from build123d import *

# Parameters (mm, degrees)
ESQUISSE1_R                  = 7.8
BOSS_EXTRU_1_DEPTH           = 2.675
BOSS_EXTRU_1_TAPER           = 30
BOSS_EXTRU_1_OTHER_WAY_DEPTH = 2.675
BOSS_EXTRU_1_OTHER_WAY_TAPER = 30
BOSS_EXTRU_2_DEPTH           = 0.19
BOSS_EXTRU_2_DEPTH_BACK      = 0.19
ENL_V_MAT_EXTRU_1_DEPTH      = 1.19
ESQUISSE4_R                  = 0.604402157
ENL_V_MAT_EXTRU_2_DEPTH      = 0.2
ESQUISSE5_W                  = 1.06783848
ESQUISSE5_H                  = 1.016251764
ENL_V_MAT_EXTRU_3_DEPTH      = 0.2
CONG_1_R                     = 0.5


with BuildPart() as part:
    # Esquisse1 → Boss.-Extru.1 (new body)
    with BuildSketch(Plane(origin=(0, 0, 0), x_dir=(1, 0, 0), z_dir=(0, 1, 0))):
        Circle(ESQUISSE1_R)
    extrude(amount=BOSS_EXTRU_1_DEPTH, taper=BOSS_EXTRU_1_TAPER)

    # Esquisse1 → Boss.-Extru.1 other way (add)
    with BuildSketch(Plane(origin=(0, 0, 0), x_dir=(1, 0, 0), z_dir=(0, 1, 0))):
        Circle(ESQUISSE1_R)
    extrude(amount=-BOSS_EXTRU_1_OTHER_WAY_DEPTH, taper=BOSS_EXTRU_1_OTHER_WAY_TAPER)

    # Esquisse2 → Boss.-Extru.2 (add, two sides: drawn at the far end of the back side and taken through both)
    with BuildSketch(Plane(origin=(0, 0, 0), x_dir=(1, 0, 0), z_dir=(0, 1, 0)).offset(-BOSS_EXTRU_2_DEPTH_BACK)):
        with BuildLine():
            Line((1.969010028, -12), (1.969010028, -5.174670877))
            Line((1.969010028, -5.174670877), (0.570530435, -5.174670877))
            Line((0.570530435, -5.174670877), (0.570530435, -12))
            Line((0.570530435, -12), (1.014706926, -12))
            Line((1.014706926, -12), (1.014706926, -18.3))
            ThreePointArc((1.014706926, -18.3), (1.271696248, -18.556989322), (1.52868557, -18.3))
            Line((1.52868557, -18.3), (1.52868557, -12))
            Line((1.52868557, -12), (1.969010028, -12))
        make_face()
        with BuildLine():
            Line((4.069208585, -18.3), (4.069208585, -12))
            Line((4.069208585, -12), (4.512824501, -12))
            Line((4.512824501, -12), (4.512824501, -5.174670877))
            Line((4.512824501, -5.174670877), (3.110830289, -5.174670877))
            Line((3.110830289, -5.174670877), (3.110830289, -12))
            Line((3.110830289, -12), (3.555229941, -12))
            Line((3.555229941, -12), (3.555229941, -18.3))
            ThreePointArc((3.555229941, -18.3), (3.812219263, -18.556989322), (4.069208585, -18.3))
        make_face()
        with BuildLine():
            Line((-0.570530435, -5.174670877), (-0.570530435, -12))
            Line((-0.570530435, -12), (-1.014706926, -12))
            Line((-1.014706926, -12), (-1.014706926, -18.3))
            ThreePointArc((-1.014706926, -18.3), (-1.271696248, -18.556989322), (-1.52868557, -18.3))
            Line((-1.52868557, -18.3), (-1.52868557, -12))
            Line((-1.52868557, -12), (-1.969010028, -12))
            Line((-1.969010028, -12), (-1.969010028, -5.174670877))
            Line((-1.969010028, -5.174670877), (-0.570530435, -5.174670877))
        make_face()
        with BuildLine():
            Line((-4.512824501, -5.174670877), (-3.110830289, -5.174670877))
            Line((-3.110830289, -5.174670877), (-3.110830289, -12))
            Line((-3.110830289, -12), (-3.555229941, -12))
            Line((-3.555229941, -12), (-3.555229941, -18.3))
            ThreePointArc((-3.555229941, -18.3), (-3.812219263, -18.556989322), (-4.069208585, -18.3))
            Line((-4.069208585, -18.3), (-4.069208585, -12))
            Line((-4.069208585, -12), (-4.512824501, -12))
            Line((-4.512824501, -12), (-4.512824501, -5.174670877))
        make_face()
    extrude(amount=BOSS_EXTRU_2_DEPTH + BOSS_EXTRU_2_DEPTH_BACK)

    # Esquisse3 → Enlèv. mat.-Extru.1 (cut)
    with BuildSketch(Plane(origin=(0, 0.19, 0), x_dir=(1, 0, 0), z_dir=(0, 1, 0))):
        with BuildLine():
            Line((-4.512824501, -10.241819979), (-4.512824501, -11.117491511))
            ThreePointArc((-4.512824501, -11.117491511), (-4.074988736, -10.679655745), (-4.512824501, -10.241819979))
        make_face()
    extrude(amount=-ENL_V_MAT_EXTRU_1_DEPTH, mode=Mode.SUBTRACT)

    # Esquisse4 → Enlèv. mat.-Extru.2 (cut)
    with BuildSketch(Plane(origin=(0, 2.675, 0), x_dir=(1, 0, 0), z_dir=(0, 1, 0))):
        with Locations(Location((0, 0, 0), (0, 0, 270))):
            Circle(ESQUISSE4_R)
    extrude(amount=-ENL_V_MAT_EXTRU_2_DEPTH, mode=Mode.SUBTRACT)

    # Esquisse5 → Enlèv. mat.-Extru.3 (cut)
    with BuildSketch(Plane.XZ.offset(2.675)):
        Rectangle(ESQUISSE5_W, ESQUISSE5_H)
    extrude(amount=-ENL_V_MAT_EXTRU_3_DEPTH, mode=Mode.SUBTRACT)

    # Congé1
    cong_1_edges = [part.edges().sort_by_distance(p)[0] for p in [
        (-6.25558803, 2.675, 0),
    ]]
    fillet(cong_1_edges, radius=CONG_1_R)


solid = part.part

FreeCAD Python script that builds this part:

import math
import FreeCAD as App
import Part
import Sketcher


def edges_at(feature, points):
    """Names of the edges that pass closest to the given points."""
    edges = feature.Shape.Edges
    near = lambda p: min(range(len(edges)), key=lambda i: edges[i].distToShape(Part.Vertex(*p))[0])
    return sorted({f"Edge{near(p) + 1}" for p in points})

doc = App.newDocument("Part")
body = doc.addObject("PartDesign::Body", "Body")

sketch1 = body.newObject("Sketcher::SketchObject", "Sketch")
sketch1.AttachmentSupport = (doc.getObject("XZ_Plane"), [""])
sketch1.MapMode = "FlatFace"
sketch1.addGeometry(Part.Circle(App.Vector(0, 0, 0), App.Vector(0, 0, 1), 8), False)
sketch1.addConstraint([
    Sketcher.Constraint("Coincident", 0, 3, -1, 1),
    Sketcher.Constraint("Diameter", 0, 15.6),
])
pad1 = body.newObject("PartDesign::Pad", "Pad")
pad1.Profile = sketch1
pad1.Length = 2.675
pad1.Reversed = True
pad1.TaperAngle = -30

sketch2 = body.newObject("Sketcher::SketchObject", "Sketch001")
sketch2.AttachmentSupport = (doc.getObject("XZ_Plane"), [""])
sketch2.MapMode = "FlatFace"
sketch2.addGeometry(Part.Circle(App.Vector(0, 0, 0), App.Vector(0, 0, 1), 8), False)
sketch2.addConstraint([
    Sketcher.Constraint("Coincident", 0, 3, -1, 1),
    Sketcher.Constraint("Diameter", 0, 15.6),
])
pad2 = body.newObject("PartDesign::Pad", "Pad001")
pad2.Profile = sketch2
pad2.Length = 2.675
pad2.TaperAngle = -30

sketch3 = body.newObject("Sketcher::SketchObject", "Sketch002")
sketch3.AttachmentSupport = (doc.getObject("XZ_Plane"), [""])
sketch3.MapMode = "FlatFace"
sketch3.addGeometry([
    Part.LineSegment(App.Vector(1.97, 12, 0), App.Vector(1.97, 5.17, 0)),
    Part.LineSegment(App.Vector(1.97, 5.17, 0), App.Vector(0.57, 5.17, 0)),
    Part.LineSegment(App.Vector(0.57, 5.17, 0), App.Vector(0.57, 12, 0)),
    Part.LineSegment(App.Vector(0.57, 12, 0), App.Vector(1.01, 12, 0)),
    Part.LineSegment(App.Vector(1.01, 12, 0), App.Vector(1.01, 18.3, 0)),
    Part.ArcOfCircle(Part.Circle(App.Vector(1.27, 18.3, 0), App.Vector(0, 0, 1), 0.26), math.radians(0), math.radians(180)),
    Part.LineSegment(App.Vector(1.53, 18.3, 0), App.Vector(1.53, 12, 0)),
    Part.LineSegment(App.Vector(1.53, 12, 0), App.Vector(1.97, 12, 0)),
    Part.LineSegment(App.Vector(4.07, 18.3, 0), App.Vector(4.07, 12, 0)),
    Part.LineSegment(App.Vector(4.07, 12, 0), App.Vector(4.51, 12, 0)),
    Part.LineSegment(App.Vector(4.51, 12, 0), App.Vector(4.51, 5.17, 0)),
    Part.LineSegment(App.Vector(4.51, 5.17, 0), App.Vector(3.11, 5.17, 0)),
    Part.LineSegment(App.Vector(3.11, 5.17, 0), App.Vector(3.11, 12, 0)),
    Part.LineSegment(App.Vector(3.11, 12, 0), App.Vector(3.56, 12, 0)),
    Part.LineSegment(App.Vector(3.56, 12, 0), App.Vector(3.56, 18.3, 0)),
    Part.ArcOfCircle(Part.Circle(App.Vector(3.81, 18.3, 0), App.Vector(0, 0, 1), 0.26), math.radians(0), math.radians(180)),
    Part.LineSegment(App.Vector(-0.57, 12, 0), App.Vector(-0.57, 5.17, 0)),
    Part.LineSegment(App.Vector(-0.57, 5.17, 0), App.Vector(-1.97, 5.17, 0)),
    Part.LineSegment(App.Vector(-1.97, 5.17, 0), App.Vector(-1.97, 12, 0)),
    Part.LineSegment(App.Vector(-1.97, 12, 0), App.Vector(-1.53, 12, 0)),
    Part.LineSegment(App.Vector(-1.53, 12, 0), App.Vector(-1.53, 18.3, 0)),
    Part.ArcOfCircle(Part.Circle(App.Vector(-1.27, 18.3, 0), App.Vector(0, 0, 1), 0.26), math.radians(0), math.radians(180)),
    Part.LineSegment(App.Vector(-1.01, 18.3, 0), App.Vector(-1.01, 12, 0)),
    Part.LineSegment(App.Vector(-1.01, 12, 0), App.Vector(-0.57, 12, 0)),
    Part.LineSegment(App.Vector(-3.11, 5.17, 0), App.Vector(-4.51, 5.17, 0)),
    Part.LineSegment(App.Vector(-4.51, 5.17, 0), App.Vector(-4.51, 12, 0)),
    Part.LineSegment(App.Vector(-4.51, 12, 0), App.Vector(-4.07, 12, 0)),
    Part.LineSegment(App.Vector(-4.07, 12, 0), App.Vector(-4.07, 18.3, 0)),
    Part.ArcOfCircle(Part.Circle(App.Vector(-3.81, 18.3, 0), App.Vector(0, 0, 1), 0.26), math.radians(0), math.radians(180)),
    Part.LineSegment(App.Vector(-3.56, 18.3, 0), App.Vector(-3.56, 12, 0)),
    Part.LineSegment(App.Vector(-3.56, 12, 0), App.Vector(-3.11, 12, 0)),
    Part.LineSegment(App.Vector(-3.11, 12, 0), App.Vector(-3.11, 5.17, 0)),
], False)
sketch3.addConstraint([
    Sketcher.Constraint("Coincident", 0, 2, 1, 1),
    Sketcher.Constraint("Coincident", 1, 2, 2, 1),
    Sketcher.Constraint("Coincident", 2, 2, 3, 1),
    Sketcher.Constraint("Coincident", 3, 2, 4, 1),
    Sketcher.Constraint("Tangent", 4, 2, 5, 2),
    Sketcher.Constraint("Tangent", 5, 1, 6, 1),
    Sketcher.Constraint("Coincident", 6, 2, 7, 1),
    Sketcher.Constraint("Coincident", 7, 2, 0, 1),
    Sketcher.Constraint("Coincident", 8, 2, 9, 1),
    Sketcher.Constraint("Coincident", 9, 2, 10, 1),
    Sketcher.Constraint("Coincident", 10, 2, 11, 1),
    Sketcher.Constraint("Coincident", 11, 2, 12, 1),
    Sketcher.Constraint("Coincident", 12, 2, 13, 1),
    Sketcher.Constraint("Coincident", 13, 2, 14, 1),
    Sketcher.Constraint("Tangent", 14, 2, 15, 2),
    Sketcher.Constraint("Tangent", 15, 1, 8, 1),
    Sketcher.Constraint("Coincident", 16, 2, 17, 1),
    Sketcher.Constraint("Coincident", 17, 2, 18, 1),
    Sketcher.Constraint("Coincident", 18, 2, 19, 1),
    Sketcher.Constraint("Coincident", 19, 2, 20, 1),
    Sketcher.Constraint("Tangent", 20, 2, 21, 2),
    Sketcher.Constraint("Tangent", 21, 1, 22, 1),
    Sketcher.Constraint("Coincident", 22, 2, 23, 1),
    Sketcher.Constraint("Coincident", 23, 2, 16, 1),
    Sketcher.Constraint("Coincident", 24, 2, 25, 1),
    Sketcher.Constraint("Coincident", 25, 2, 26, 1),
    Sketcher.Constraint("Coincident", 26, 2, 27, 1),
    Sketcher.Constraint("Tangent", 27, 2, 28, 2),
    Sketcher.Constraint("Tangent", 28, 1, 29, 1),
    Sketcher.Constraint("Coincident", 29, 2, 30, 1),
    Sketcher.Constraint("Coincident", 30, 2, 31, 1),
    Sketcher.Constraint("Coincident", 31, 2, 24, 1),
    Sketcher.Constraint("Vertical", 0),
    Sketcher.Constraint("Horizontal", 1),
    Sketcher.Constraint("Vertical", 2),
    Sketcher.Constraint("Horizontal", 3),
    Sketcher.Constraint("Vertical", 4),
    Sketcher.Constraint("Vertical", 6),
    Sketcher.Constraint("Horizontal", 7),
    Sketcher.Constraint("Vertical", 8),
    Sketcher.Constraint("Horizontal", 9),
    Sketcher.Constraint("Vertical", 10),
    Sketcher.Constraint("Horizontal", 11),
    Sketcher.Constraint("Vertical", 12),
    Sketcher.Constraint("Horizontal", 13),
    Sketcher.Constraint("Vertical", 14),
    Sketcher.Constraint("Vertical", 16),
    Sketcher.Constraint("Horizontal", 17),
    Sketcher.Constraint("Vertical", 18),
    Sketcher.Constraint("Horizontal", 19),
    Sketcher.Constraint("Vertical", 20),
    Sketcher.Constraint("Vertical", 22),
    Sketcher.Constraint("Horizontal", 23),
    Sketcher.Constraint("Horizontal", 24),
    Sketcher.Constraint("Vertical", 25),
    Sketcher.Constraint("Horizontal", 26),
    Sketcher.Constraint("Vertical", 27),
    Sketcher.Constraint("Vertical", 29),
    Sketcher.Constraint("Horizontal", 30),
    Sketcher.Constraint("Vertical", 31),
    Sketcher.Constraint("Equal", 5, 15),
    Sketcher.Constraint("Equal", 15, 21),
    Sketcher.Constraint("Equal", 21, 28),
    Sketcher.Constraint("Symmetric", 5, 3, 21, 3, -2),
    Sketcher.Constraint("Symmetric", 15, 3, 28, 3, -2),
    Sketcher.Constraint("Symmetric", 1, 2, 16, 2, -2),
    Sketcher.Constraint("Symmetric", 7, 2, 18, 2, -2),
    Sketcher.Constraint("Symmetric", 10, 2, 24, 2, -2),
    Sketcher.Constraint("Symmetric", 12, 2, 30, 2, -2),
    Sketcher.Constraint("Horizontal", 5, 3, 15, 3),
    Sketcher.Constraint("Horizontal", 3, 2, 6, 2),
    Sketcher.Constraint("Horizontal", 7, 2, 8, 2),
    Sketcher.Constraint("Horizontal", 1, 2, 10, 2),
    Sketcher.Constraint("Horizontal", 9, 2, 12, 2),
    Sketcher.Constraint("Horizontal", 19, 2, 22, 2),
    Sketcher.Constraint("Horizontal", 23, 2, 25, 2),
    Sketcher.Constraint("DistanceY", 4, 1, 4, 2, 6.3),
    Sketcher.Constraint("DistanceY", -1, 1, 2, 2, 12.0),
    Sketcher.Constraint("Radius", 5, 0.256989),
    Sketcher.Constraint("DistanceX", 13, 1, 13, 2, 0.4444),
    Sketcher.Constraint("DistanceX", 1, 2, 1, 1, 1.39848),
    Sketcher.Constraint("DistanceY", 0, 2, 0, 1, 6.825329),
    Sketcher.Constraint("DistanceX", 7, 2, 8, 2, 2.100199),
    Sketcher.Constraint("DistanceX", 3, 2, 8, 2, 3.054502),
    Sketcher.Constraint("DistanceX", 9, 1, 9, 2, 0.443616),
    Sketcher.Constraint("DistanceX", -1, 1, 15, 3, 3.812219),
])
pad3 = body.newObject("PartDesign::Pad", "Pad002")
pad3.Profile = sketch3
pad3.Type = "TwoLengths"
pad3.Length = 0.19
pad3.Length2 = 0.19
pad3.Reversed = True

sketch4 = body.newObject("Sketcher::SketchObject", "Sketch003")
sketch4.AttachmentSupport = (doc.getObject("XZ_Plane"), [""])
sketch4.MapMode = "FlatFace"
sketch4.AttachmentOffset = App.Placement(App.Vector(0, 0, -0.19), App.Rotation())
sketch4.addGeometry([
    Part.LineSegment(App.Vector(-4.51, 10.24, 0), App.Vector(-4.51, 11.12, 0)),
    Part.ArcOfCircle(Part.Circle(App.Vector(-4.51, 10.68, 0), App.Vector(0, 0, 1), 0.44), math.radians(-90), math.radians(90)),
], False)
sketch4.addConstraint([
    Sketcher.Constraint("Coincident", 0, 1, 1, 1),
    Sketcher.Constraint("Coincident", 1, 2, 0, 2),
    Sketcher.Constraint("Vertical", 0),
    Sketcher.Constraint("Vertical", 1, 3, 0, 1),
    Sketcher.Constraint("Radius", 1, 0.437836),
    Sketcher.Constraint("DistanceY", -1, 1, 0, 1, 10.24182),
    Sketcher.Constraint("DistanceX", 1, 3, -1, 1, 4.512825),
])
pocket1 = body.newObject("PartDesign::Pocket", "Pocket")
pocket1.Profile = sketch4
pocket1.Length = 1.19
pocket1.Reversed = True

sketch5 = body.newObject("Sketcher::SketchObject", "Sketch004")
sketch5.AttachmentSupport = (doc.getObject("XZ_Plane"), [""])
sketch5.MapMode = "FlatFace"
sketch5.AttachmentOffset = App.Placement(App.Vector(0, 0, -2.675), App.Rotation())
sketch5.addGeometry(Part.Circle(App.Vector(0, 0, 0), App.Vector(0, 0, 1), 0.6), False)
sketch5.addConstraint([
    Sketcher.Constraint("Coincident", 0, 3, -1, 1),
    Sketcher.Constraint("Diameter", 0, 1.208804),
])
pocket2 = body.newObject("PartDesign::Pocket", "Pocket001")
pocket2.Profile = sketch5
pocket2.Length = 0.2
pocket2.Reversed = True

sketch6 = body.newObject("Sketcher::SketchObject", "Sketch005")
sketch6.AttachmentSupport = (doc.getObject("XZ_Plane"), [""])
sketch6.MapMode = "FlatFace"
sketch6.AttachmentOffset = App.Placement(App.Vector(0, 0, 2.675), App.Rotation())
sketch6.addGeometry([
    Part.LineSegment(App.Vector(-0.5, 0.5, 0), App.Vector(-0.5, -0.5, 0)),
    Part.LineSegment(App.Vector(-0.5, -0.5, 0), App.Vector(0.5, -0.5, 0)),
    Part.LineSegment(App.Vector(0.5, -0.5, 0), App.Vector(0.5, 0.5, 0)),
    Part.LineSegment(App.Vector(0.5, 0.5, 0), App.Vector(-0.5, 0.5, 0)),
], False)
sketch6.addConstraint([
    Sketcher.Constraint("Coincident", 0, 2, 1, 1),
    Sketcher.Constraint("Coincident", 1, 2, 2, 1),
    Sketcher.Constraint("Coincident", 2, 2, 3, 1),
    Sketcher.Constraint("Coincident", 3, 2, 0, 1),
    Sketcher.Constraint("Vertical", 0),
    Sketcher.Constraint("Horizontal", 1),
    Sketcher.Constraint("Vertical", 2),
    Sketcher.Constraint("Horizontal", 3),
    Sketcher.Constraint("Symmetric", 0, 2, 2, 2, -1, 1),
    Sketcher.Constraint("DistanceX", 1, 1, 1, 2, 1.067838),
    Sketcher.Constraint("DistanceY", 0, 2, 0, 1, 1.016252),
])
pocket3 = body.newObject("PartDesign::Pocket", "Pocket002")
pocket3.Profile = sketch6
pocket3.Length = 0.2
doc.recompute()

fillet = body.newObject("PartDesign::Fillet", "Fillet")
fillet.Base = (pocket3, edges_at(pocket3, [(-6.256, 2.675, 0)]))
fillet.Radius = 0.5

doc.recompute()
